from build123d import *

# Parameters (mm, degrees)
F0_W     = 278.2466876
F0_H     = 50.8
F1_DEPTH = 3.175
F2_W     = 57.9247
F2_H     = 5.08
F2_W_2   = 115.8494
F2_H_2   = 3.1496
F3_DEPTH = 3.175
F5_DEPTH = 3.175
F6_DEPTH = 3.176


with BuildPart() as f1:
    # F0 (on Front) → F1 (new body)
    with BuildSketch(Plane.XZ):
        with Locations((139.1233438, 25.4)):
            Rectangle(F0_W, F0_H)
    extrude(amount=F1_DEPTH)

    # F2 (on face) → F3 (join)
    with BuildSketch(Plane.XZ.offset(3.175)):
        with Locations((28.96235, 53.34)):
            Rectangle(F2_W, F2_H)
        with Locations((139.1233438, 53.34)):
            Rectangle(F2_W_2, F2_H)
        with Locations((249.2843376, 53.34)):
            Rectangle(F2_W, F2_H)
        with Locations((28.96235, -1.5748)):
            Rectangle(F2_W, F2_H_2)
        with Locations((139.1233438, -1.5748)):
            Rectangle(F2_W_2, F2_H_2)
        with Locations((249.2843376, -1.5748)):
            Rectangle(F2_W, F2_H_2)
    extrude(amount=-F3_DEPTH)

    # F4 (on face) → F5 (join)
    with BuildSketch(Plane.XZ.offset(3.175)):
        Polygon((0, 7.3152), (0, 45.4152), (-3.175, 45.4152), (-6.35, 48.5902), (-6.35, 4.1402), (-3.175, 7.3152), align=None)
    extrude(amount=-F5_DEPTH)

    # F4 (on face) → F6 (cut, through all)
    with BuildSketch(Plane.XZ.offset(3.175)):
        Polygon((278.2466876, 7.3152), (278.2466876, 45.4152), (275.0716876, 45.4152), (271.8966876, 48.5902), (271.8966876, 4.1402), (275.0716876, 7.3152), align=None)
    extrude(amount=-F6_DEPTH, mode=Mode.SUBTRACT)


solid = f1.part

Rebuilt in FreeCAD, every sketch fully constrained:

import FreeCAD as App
import Part
import Sketcher
from FreeCAD import Vector
Q = App.Units.Quantity


def add_polygon(sketch, points):
    """Adds a closed chain of lines whose ends are joined by coincident constraints."""
    first, n = sketch.GeometryCount, len(points)
    for a, b in zip(points, points[1:] + points[:1]):
        sketch.addGeometry(Part.LineSegment(App.Vector(*a, 0), App.Vector(*b, 0)), False)
    for i in range(n):
        sketch.addConstraint(Sketcher.Constraint("Coincident", first + i, 2, first + (i + 1) % n, 1))

doc = App.newDocument("Part")
body = doc.addObject("PartDesign::Body", "Body")

sketch1 = body.newObject("Sketcher::SketchObject", "Sketch")
sketch1.AttachmentSupport = (doc.getObject("XZ_Plane"), [""])
sketch1.MapMode = "FlatFace"
add_polygon(sketch1, [(0, 50.8), (0, 0), (278.246688, 0), (278.246688, 50.8)])
sketch1.addConstraint(Sketcher.Constraint("Vertical", 0))
sketch1.addConstraint(Sketcher.Constraint("Horizontal", 1))
sketch1.addConstraint(Sketcher.Constraint("Vertical", 2))
sketch1.addConstraint(Sketcher.Constraint("Horizontal", 3))
sketch1.addConstraint(Sketcher.Constraint("Coincident", 0, 2, -1, 1))
sketch1.addConstraint(Sketcher.Constraint("DistanceY", 0, 2, 0, 1, Q("2 in")))
sketch1.addConstraint(Sketcher.Constraint("DistanceX", 1, 1, 1, 2, 278.246688))
pad1 = body.newObject("PartDesign::Pad", "Pad")
pad1.Profile = sketch1
pad1.Length = Q("0.125 in")

sketch2 = body.newObject("Sketcher::SketchObject", "Sketch001")
sketch2.AttachmentSupport = (doc.getObject("XZ_Plane"), [""])
sketch2.MapMode = "FlatFace"
sketch2.AttachmentOffset = App.Placement(Vector(0, 0, 0.125 * 25.4), App.Rotation())
add_polygon(sketch2, [(0, 55.88), (0, 50.8), (57.9247, 50.8), (57.9247, 55.88)])
add_polygon(sketch2, [(81.198644, 55.88), (81.198644, 50.8), (197.048044, 50.8), (197.048044, 55.88)])
add_polygon(sketch2, [(220.321988, 55.88), (220.321988, 50.8), (278.246688, 50.8), (278.246688, 55.88)])
add_polygon(sketch2, [(0, 0), (0, -3.1496), (57.9247, -3.1496), (57.9247, 0)])
add_polygon(sketch2, [(81.198644, 0), (81.198644, -3.1496), (197.048044, -3.1496), (197.048044, 0)])
add_polygon(sketch2, [(220.321988, 0), (220.321988, -3.1496), (278.246688, -3.1496), (278.246688, 0)])
sketch2.addConstraint(Sketcher.Constraint("Vertical", 0))
sketch2.addConstraint(Sketcher.Constraint("Horizontal", 1))
sketch2.addConstraint(Sketcher.Constraint("Vertical", 2))
sketch2.addConstraint(Sketcher.Constraint("Horizontal", 3))
sketch2.addConstraint(Sketcher.Constraint("Vertical", 4))
sketch2.addConstraint(Sketcher.Constraint("Horizontal", 5))
sketch2.addConstraint(Sketcher.Constraint("Vertical", 6))
sketch2.addConstraint(Sketcher.Constraint("Horizontal", 7))
sketch2.addConstraint(Sketcher.Constraint("Vertical", 8))
sketch2.addConstraint(Sketcher.Constraint("Horizontal", 9))
sketch2.addConstraint(Sketcher.Constraint("Vertical", 10))
sketch2.addConstraint(Sketcher.Constraint("Horizontal", 11))
sketch2.addConstraint(Sketcher.Constraint("Vertical", 12))
sketch2.addConstraint(Sketcher.Constraint("Horizontal", 13))
sketch2.addConstraint(Sketcher.Constraint("Vertical", 14))
sketch2.addConstraint(Sketcher.Constraint("Horizontal", 15))
sketch2.addConstraint(Sketcher.Constraint("Vertical", 16))
sketch2.addConstraint(Sketcher.Constraint("Horizontal", 17))
sketch2.addConstraint(Sketcher.Constraint("Vertical", 18))
sketch2.addConstraint(Sketcher.Constraint("Horizontal", 19))
sketch2.addConstraint(Sketcher.Constraint("Vertical", 20))
sketch2.addConstraint(Sketcher.Constraint("Horizontal", 21))
sketch2.addConstraint(Sketcher.Constraint("Vertical", 22))
sketch2.addConstraint(Sketcher.Constraint("Horizontal", 23))
sketch2.addConstraint(Sketcher.Constraint("Coincident", 15, 2, -1, 1))
sketch2.addConstraint(Sketcher.Constraint("PointOnObject", 0, 2, -2))
sketch2.addConstraint(Sketcher.Constraint("PointOnObject", 18, 2, -1))
sketch2.addConstraint(Sketcher.Constraint("PointOnObject", 22, 2, -1))
sketch2.addConstraint(Sketcher.Constraint("Horizontal", 1, 2, 4, 2))
sketch2.addConstraint(Sketcher.Constraint("Horizontal", 3, 2, 6, 2))
sketch2.addConstraint(Sketcher.Constraint("Horizontal", 5, 2, 8, 2))
sketch2.addConstraint(Sketcher.Constraint("Horizontal", 7, 2, 10, 2))
sketch2.addConstraint(Sketcher.Constraint("Horizontal", 13, 2, 16, 2))
sketch2.addConstraint(Sketcher.Constraint("Horizontal", 17, 2, 20, 2))
sketch2.addConstraint(Sketcher.Constraint("Vertical", 2, 2, 13, 2))
sketch2.addConstraint(Sketcher.Constraint("Vertical", 7, 2, 16, 2))
sketch2.addConstraint(Sketcher.Constraint("Vertical", 6, 2, 17, 2))
sketch2.addConstraint(Sketcher.Constraint("Vertical", 11, 2, 20, 2))
sketch2.addConstraint(Sketcher.Constraint("Vertical", 10, 2, 21, 2))
sketch2.addConstraint(Sketcher.Constraint("Equal", 3, 9))
sketch2.addConstraint(Sketcher.Constraint("DistanceY", 0, 2, 0, 1, Q("0.2 in")))
sketch2.addConstraint(Sketcher.Constraint("DistanceY", -1, 1, 0, 2, Q("2 in")))
sketch2.addConstraint(Sketcher.Constraint("DistanceX", 5, 1, 5, 2, Q("4.561 in")))
sketch2.addConstraint(Sketcher.Constraint("DistanceY", 12, 2, 12, 1, Q("0.124 in")))
sketch2.addConstraint(Sketcher.Constraint("DistanceX", 1, 1, 1, 2, Q("2.2805 in")))
sketch2.addConstraint(Sketcher.Constraint("DistanceX", -1, 1, 4, 2, 81.198644))
sketch2.addConstraint(Sketcher.Constraint("DistanceX", -1, 1, 8, 2, 220.321988))
pad2 = body.newObject("PartDesign::Pad", "Pad001")
pad2.Profile = sketch2
pad2.Length = Q("0.125 in")
pad2.Reversed = True

sketch3 = body.newObject("Sketcher::SketchObject", "Sketch002")
sketch3.AttachmentSupport = (doc.getObject("XZ_Plane"), [""])
sketch3.MapMode = "FlatFace"
sketch3.AttachmentOffset = App.Placement(Vector(0, 0, 0.125 * 25.4), App.Rotation())
add_polygon(sketch3, [(0, 7.3152), (0, 45.4152), (-3.175, 45.4152), (-6.35, 48.5902), (-6.35, 4.1402), (-3.175, 7.3152)])
sketch3.addConstraint(Sketcher.Constraint("Vertical", 0))
sketch3.addConstraint(Sketcher.Constraint("Horizontal", 1))
sketch3.addConstraint(Sketcher.Constraint("Vertical", 3))
sketch3.addConstraint(Sketcher.Constraint("Horizontal", 5))
sketch3.addConstraint(Sketcher.Constraint("PointOnObject", 0, 2, -2))
sketch3.addConstraint(Sketcher.Constraint("Perpendicular", 2, 4))
sketch3.addConstraint(Sketcher.Constraint("Vertical", 1, 2, 4, 2))
sketch3.addConstraint(Sketcher.Constraint("Equal", 2, 4))
sketch3.addConstraint(Sketcher.Constraint("DistanceY", 0, 1, 0, 2, Q("1.5 in")))
sketch3.addConstraint(Sketcher.Constraint("DistanceY", 3, 2, 3, 1, Q("1.75 in")))
sketch3.addConstraint(Sketcher.Constraint("DistanceX", 1, 2, 1, 1, Q("0.125 in")))
sketch3.addConstraint(Sketcher.Constraint("DistanceY", -1, 1, 0, 2, Q("1.788 in")))
pad3 = body.newObject("PartDesign::Pad", "Pad002")
pad3.Profile = sketch3
pad3.Length = Q("0.125 in")
pad3.Reversed = True

sketch4 = body.newObject("Sketcher::SketchObject", "Sketch003")
sketch4.AttachmentSupport = (doc.getObject("XZ_Plane"), [""])
sketch4.MapMode = "FlatFace"
sketch4.AttachmentOffset = App.Placement(Vector(0, 0, 0.125 * 25.4), App.Rotation())
add_polygon(sketch4, [(278.246688, 7.3152), (278.246688, 45.4152), (275.071688, 45.4152), (271.896688, 48.5902), (271.896688, 4.1402), (275.071688, 7.3152)])
sketch4.addConstraint(Sketcher.Constraint("Vertical", 0))
sketch4.addConstraint(Sketcher.Constraint("Horizontal", 1))
sketch4.addConstraint(Sketcher.Constraint("Vertical", 3))
sketch4.addConstraint(Sketcher.Constraint("Horizontal", 5))
sketch4.addConstraint(Sketcher.Constraint("Perpendicular", 2, 4))
sketch4.addConstraint(Sketcher.Constraint("Vertical", 1, 2, 4, 2))
sketch4.addConstraint(Sketcher.Constraint("Equal", 2, 4))
sketch4.addConstraint(Sketcher.Constraint("DistanceY", 0, 1, 0, 2, Q("1.5 in")))
sketch4.addConstraint(Sketcher.Constraint("DistanceY", 3, 2, 3, 1, Q("1.75 in")))
sketch4.addConstraint(Sketcher.Constraint("DistanceX", 1, 2, 1, 1, Q("0.125 in")))
sketch4.addConstraint(Sketcher.Constraint("DistanceY", -1, 1, 0, 2, Q("1.788 in")))
sketch4.addConstraint(Sketcher.Constraint("DistanceX", -1, 1, 0, 2, 278.246688))
pocket1 = body.newObject("PartDesign::Pocket", "Pocket")
pocket1.Profile = sketch4
pocket1.Type = "ThroughAll"

doc.recompute()
